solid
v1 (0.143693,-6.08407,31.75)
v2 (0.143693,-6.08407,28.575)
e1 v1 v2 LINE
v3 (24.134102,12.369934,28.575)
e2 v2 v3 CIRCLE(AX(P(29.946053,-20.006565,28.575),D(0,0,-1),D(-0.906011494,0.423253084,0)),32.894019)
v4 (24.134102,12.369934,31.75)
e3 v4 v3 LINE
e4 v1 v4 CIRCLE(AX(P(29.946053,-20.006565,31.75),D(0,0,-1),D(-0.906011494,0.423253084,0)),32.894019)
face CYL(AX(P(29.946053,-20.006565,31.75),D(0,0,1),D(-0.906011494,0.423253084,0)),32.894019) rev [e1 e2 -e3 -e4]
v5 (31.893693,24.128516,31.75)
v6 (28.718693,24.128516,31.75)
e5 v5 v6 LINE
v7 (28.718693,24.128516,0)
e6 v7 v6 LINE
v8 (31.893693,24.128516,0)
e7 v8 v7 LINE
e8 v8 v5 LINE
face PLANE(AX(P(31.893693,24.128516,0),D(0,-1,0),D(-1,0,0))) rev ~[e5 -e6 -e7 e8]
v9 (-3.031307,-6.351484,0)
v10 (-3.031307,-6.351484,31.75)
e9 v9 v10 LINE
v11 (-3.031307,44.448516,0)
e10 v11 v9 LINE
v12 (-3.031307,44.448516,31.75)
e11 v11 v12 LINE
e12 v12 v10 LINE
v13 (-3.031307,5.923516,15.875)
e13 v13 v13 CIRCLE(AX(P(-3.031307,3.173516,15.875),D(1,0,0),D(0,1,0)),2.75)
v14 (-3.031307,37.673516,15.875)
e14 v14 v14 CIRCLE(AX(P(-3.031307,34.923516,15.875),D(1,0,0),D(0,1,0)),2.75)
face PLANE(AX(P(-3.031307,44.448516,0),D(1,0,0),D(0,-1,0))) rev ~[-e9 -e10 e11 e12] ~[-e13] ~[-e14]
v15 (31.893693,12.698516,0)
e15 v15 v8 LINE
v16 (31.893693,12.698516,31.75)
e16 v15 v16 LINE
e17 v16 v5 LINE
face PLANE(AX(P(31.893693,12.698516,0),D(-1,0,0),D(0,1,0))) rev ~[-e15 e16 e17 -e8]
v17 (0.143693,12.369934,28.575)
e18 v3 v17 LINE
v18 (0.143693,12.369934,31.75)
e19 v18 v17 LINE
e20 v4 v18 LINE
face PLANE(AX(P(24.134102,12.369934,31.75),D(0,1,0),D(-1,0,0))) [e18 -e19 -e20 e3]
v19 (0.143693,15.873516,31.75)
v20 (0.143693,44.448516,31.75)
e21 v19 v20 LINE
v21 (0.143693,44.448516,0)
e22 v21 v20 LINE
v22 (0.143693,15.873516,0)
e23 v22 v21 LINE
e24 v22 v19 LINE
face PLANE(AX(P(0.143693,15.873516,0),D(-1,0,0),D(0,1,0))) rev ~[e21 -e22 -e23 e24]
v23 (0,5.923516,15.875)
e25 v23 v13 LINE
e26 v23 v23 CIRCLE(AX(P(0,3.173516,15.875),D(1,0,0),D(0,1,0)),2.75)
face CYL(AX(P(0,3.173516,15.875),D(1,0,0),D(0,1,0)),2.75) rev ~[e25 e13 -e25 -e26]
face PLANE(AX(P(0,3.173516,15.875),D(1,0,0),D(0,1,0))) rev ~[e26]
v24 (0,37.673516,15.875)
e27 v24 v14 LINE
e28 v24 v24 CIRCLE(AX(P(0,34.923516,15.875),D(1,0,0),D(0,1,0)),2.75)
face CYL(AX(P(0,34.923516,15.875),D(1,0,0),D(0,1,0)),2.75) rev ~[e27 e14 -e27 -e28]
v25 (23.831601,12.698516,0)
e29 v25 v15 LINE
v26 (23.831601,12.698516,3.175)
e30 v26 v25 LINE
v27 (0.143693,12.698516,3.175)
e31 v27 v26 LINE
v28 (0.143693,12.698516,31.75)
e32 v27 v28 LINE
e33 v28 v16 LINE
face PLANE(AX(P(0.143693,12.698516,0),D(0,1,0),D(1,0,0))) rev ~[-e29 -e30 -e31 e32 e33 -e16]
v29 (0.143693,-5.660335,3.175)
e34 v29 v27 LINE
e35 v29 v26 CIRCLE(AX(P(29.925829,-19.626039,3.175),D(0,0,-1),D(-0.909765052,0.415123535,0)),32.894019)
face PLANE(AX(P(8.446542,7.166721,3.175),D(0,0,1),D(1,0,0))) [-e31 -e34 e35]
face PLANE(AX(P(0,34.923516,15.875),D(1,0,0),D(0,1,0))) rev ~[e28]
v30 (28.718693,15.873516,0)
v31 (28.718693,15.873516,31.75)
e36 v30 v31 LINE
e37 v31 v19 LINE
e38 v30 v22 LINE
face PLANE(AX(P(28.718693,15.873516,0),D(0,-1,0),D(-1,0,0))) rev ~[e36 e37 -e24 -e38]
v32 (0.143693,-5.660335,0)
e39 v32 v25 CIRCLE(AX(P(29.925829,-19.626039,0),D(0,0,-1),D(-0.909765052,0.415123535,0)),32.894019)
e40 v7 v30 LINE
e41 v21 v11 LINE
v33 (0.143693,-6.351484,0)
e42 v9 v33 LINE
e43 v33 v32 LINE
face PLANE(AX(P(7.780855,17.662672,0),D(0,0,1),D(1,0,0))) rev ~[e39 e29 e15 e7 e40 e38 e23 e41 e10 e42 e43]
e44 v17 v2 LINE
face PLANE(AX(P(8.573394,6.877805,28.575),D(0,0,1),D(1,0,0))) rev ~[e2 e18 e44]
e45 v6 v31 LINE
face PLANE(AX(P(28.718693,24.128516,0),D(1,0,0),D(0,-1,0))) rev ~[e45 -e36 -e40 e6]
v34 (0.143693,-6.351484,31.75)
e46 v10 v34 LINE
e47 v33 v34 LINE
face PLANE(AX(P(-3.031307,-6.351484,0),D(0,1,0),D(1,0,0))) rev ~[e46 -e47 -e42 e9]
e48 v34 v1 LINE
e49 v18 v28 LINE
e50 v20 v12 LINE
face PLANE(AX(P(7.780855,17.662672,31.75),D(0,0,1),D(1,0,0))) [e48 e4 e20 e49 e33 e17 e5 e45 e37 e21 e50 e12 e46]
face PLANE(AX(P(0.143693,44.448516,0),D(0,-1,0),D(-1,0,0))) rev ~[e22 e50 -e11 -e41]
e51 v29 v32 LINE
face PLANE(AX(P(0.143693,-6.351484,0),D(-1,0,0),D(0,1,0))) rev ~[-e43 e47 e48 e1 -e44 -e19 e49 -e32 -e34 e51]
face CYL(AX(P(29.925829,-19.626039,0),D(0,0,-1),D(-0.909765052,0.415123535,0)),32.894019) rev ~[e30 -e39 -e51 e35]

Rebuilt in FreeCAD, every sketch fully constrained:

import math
import FreeCAD as App
import Part
import Sketcher

V = App.Vector
Q = App.Units.Quantity


def add_polygon(sketch, points):
    """Adds a closed chain of lines whose ends are joined by coincident constraints."""
    first, n = sketch.GeometryCount, len(points)
    for a, b in zip(points, points[1:] + points[:1]):
        sketch.addGeometry(Part.LineSegment(App.Vector(*a, 0), App.Vector(*b, 0)), False)
    for i in range(n):
        sketch.addConstraint(Sketcher.Constraint("Coincident", first + i, 2, first + (i + 1) % n, 1))

doc = App.newDocument("Part")
body = doc.addObject("PartDesign::Body", "Body")

# Sketch on XY plane
sketch1 = body.newObject("Sketcher::SketchObject", "Sketch")
sketch1.AttachmentSupport = (doc.getObject("XY_Plane"), [""])
sketch1.MapMode = "FlatFace"
add_polygon(sketch1, [(0.143693, 44.448516), (-3.031307, 44.448516), (-3.031307, -6.351484), (0.143693, -6.351484), (0.143693, 12.698516), (31.893693, 12.698516), (31.893693, 24.128516), (28.718693, 24.128516), (28.718693, 15.873516), (0.143693, 15.873516)])  # lines 0-9
sketch1.addConstraint(Sketcher.Constraint("Horizontal", 0))
sketch1.addConstraint(Sketcher.Constraint("Vertical", 1))
sketch1.addConstraint(Sketcher.Constraint("Horizontal", 2))
sketch1.addConstraint(Sketcher.Constraint("Vertical", 3))
sketch1.addConstraint(Sketcher.Constraint("Horizontal", 4))
sketch1.addConstraint(Sketcher.Constraint("Vertical", 5))
sketch1.addConstraint(Sketcher.Constraint("Horizontal", 6))
sketch1.addConstraint(Sketcher.Constraint("Vertical", 7))
sketch1.addConstraint(Sketcher.Constraint("Horizontal", 8))
sketch1.addConstraint(Sketcher.Constraint("Vertical", 9))
sketch1.addConstraint(Sketcher.Constraint("Vertical", 3, 2, 8, 2))
sketch1.addConstraint(Sketcher.Constraint("Equal", 2, 6))
sketch1.addConstraint(Sketcher.Constraint("Equal", 8, 9))
sketch1.addConstraint(Sketcher.Constraint("DistanceY", 1, 2, 1, 1, Q("2 in")))
sketch1.addConstraint(Sketcher.Constraint("DistanceX", 4, 1, 4, 2, Q("1.25 in")))
sketch1.addConstraint(Sketcher.Constraint("DistanceY", 3, 1, 3, 2, Q("0.75 in")))
sketch1.addConstraint(Sketcher.Constraint("DistanceY", 5, 1, 5, 2, Q("0.45 in")))
sketch1.addConstraint(Sketcher.Constraint("DistanceX", 0, 2, 0, 1, Q("0.125 in")))
sketch1.addConstraint(Sketcher.Constraint("DistanceX", 0, 2, -1, 1, Q("3.031307 mm")))
sketch1.addConstraint(Sketcher.Constraint("DistanceY", -1, 1, 0, 2, Q("44.448516 mm")))
pad1 = body.newObject("PartDesign::Pad", "Pad")
pad1.Profile = sketch1
pad1.Length = Q("1.25 in")

# Sketch on XY plane
sketch2 = body.newObject("Sketcher::SketchObject", "Sketch001")
sketch2.AttachmentSupport = (doc.getObject("XY_Plane"), [""])
sketch2.MapMode = "FlatFace"
sketch2.addGeometry(Part.ArcOfCircle(Part.Circle(V(29.925829, -19.626039, 0), V(0, 0, 1), 32.894019), math.radians(100.176854), math.radians(155.472904)), False)
sketch2.addGeometry(Part.LineSegment(V(24.113879, 12.750461, 0), V(0, 12.750461, 0)), False)
sketch2.addGeometry(Part.LineSegment(V(0, 12.750461, 0), V(0, -5.970957, 0)), False)
sketch2.addConstraint(Sketcher.Constraint("Coincident", 0, 1, 1, 1))
sketch2.addConstraint(Sketcher.Constraint("Coincident", 1, 2, 2, 1))
sketch2.addConstraint(Sketcher.Constraint("Coincident", 2, 2, 0, 2))
sketch2.addConstraint(Sketcher.Constraint("Horizontal", 1))
sketch2.addConstraint(Sketcher.Constraint("Vertical", 2))
sketch2.addConstraint(Sketcher.Constraint("PointOnObject", 1, 2, -2))
sketch2.addConstraint(Sketcher.Constraint("Radius", 0, Q("32.894019 mm")))
sketch2.addConstraint(Sketcher.Constraint("DistanceX", 1, 2, 1, 1, Q("24.113879 mm")))
sketch2.addConstraint(Sketcher.Constraint("DistanceY", 0, 3, 0, 1, Q("32.376499 mm")))
sketch2.addConstraint(Sketcher.Constraint("DistanceY", 0, 3, -1, 1, Q("19.626039 mm")))
pad2 = body.newObject("PartDesign::Pad", "Pad001")
pad2.Profile = sketch2
pad2.Length = Q("0.125 in")

# Sketch on XY plane
sketch3 = body.newObject("Sketcher::SketchObject", "Sketch002")
sketch3.AttachmentSupport = (doc.getObject("XY_Plane"), [""])
sketch3.MapMode = "FlatFace"
sketch3.AttachmentOffset = App.Placement(V(0, 0, 1.25 * 25.4), App.Rotation())
sketch3.addGeometry(Part.ArcOfCircle(Part.Circle(V(29.946053, -20.006565, 0), V(0, 0, 1), 32.894019), math.radians(100.176854), math.radians(154.959861)), False)
sketch3.addGeometry(Part.LineSegment(V(24.134102, 12.369934, 0), V(0.143693, 12.369934, 0)), False)
sketch3.addGeometry(Part.LineSegment(V(0.143693, 12.369934, 0), V(0.143693, -6.08407, 0)), False)
sketch3.addConstraint(Sketcher.Constraint("Coincident", 0, 1, 1, 1))
sketch3.addConstraint(Sketcher.Constraint("Coincident", 1, 2, 2, 1))
sketch3.addConstraint(Sketcher.Constraint("Coincident", 2, 2, 0, 2))
sketch3.addConstraint(Sketcher.Constraint("Horizontal", 1))
sketch3.addConstraint(Sketcher.Constraint("Vertical", 2))
sketch3.addConstraint(Sketcher.Constraint("Radius", 0, Q("32.894019 mm")))
sketch3.addConstraint(Sketcher.Constraint("DistanceX", 1, 2, 1, 1, Q("23.990409 mm")))
sketch3.addConstraint(Sketcher.Constraint("DistanceY", 0, 3, 0, 1, Q("32.376499 mm")))
sketch3.addConstraint(Sketcher.Constraint("DistanceY", 2, 2, -1, 1, Q("6.08407 mm")))
sketch3.addConstraint(Sketcher.Constraint("DistanceX", -1, 1, 0, 3, Q("29.946053 mm")))
pad3 = body.newObject("PartDesign::Pad", "Pad002")
pad3.Profile = sketch3
pad3.Length = Q("0.125 in")
pad3.Reversed = True

# Sketch on YZ plane
sketch4 = body.newObject("Sketcher::SketchObject", "Sketch003")
sketch4.AttachmentSupport = (doc.getObject("YZ_Plane"), [""])
sketch4.MapMode = "FlatFace"
sketch4.addGeometry(Part.Circle(V(34.923516, 15.875, 0), V(0, 0, 1), 2.75), False)
sketch4.addGeometry(Part.Circle(V(3.173516, 15.875, 0), V(0, 0, 1), 2.75), False)
sketch4.addConstraint(Sketcher.Constraint("Equal", 0, 1))
sketch4.addConstraint(Sketcher.Constraint("Horizontal", 0, 3, 1, 3))
sketch4.addConstraint(Sketcher.Constraint("Diameter", 0, Q("5.5 mm")))
sketch4.addConstraint(Sketcher.Constraint("DistanceX", 1, 3, 0, 3, Q("1.25 in")))
sketch4.addConstraint(Sketcher.Constraint("DistanceY", -1, 1, 0, 3, Q("0.625 in")))
sketch4.addConstraint(Sketcher.Constraint("DistanceX", -1, 1, 0, 3, Q("34.923516 mm")))
pocket1 = body.newObject("PartDesign::Pocket", "Pocket")
pocket1.Profile = sketch4
pocket1.Type = "ThroughAll"

doc.recompute()
